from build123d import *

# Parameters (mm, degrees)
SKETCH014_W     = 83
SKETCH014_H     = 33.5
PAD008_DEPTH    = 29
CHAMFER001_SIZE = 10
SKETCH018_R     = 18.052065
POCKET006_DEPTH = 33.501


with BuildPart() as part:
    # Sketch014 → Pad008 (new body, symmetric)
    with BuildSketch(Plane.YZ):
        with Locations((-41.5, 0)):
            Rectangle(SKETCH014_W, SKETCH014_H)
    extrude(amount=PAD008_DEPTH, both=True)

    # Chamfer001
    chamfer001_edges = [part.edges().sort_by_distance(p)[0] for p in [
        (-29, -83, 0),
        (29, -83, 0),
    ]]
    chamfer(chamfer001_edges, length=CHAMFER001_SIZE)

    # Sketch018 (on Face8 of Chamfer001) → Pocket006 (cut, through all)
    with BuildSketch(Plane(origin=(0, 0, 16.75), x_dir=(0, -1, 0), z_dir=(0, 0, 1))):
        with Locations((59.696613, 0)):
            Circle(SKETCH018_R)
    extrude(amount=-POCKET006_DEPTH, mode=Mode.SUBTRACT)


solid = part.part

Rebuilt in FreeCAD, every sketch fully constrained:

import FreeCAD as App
import Part
import Sketcher
from FreeCAD import Vector


def edges_at(feature, points):
    """Names of the edges that pass closest to the given points."""
    edges = feature.Shape.Edges
    near = lambda p: min(range(len(edges)), key=lambda i: edges[i].distToShape(Part.Vertex(*p))[0])
    return sorted({f"Edge{near(p) + 1}" for p in points})

doc = App.newDocument("Part")
body = doc.addObject("PartDesign::Body", "Body")

# Sketch on YZ plane
sketch1 = body.newObject("Sketcher::SketchObject", "Sketch")
sketch1.AttachmentSupport = (doc.getObject("YZ_Plane"), [""])
sketch1.MapMode = "FlatFace"
sketch1.addGeometry(Part.LineSegment(Vector(-83, 17, 0), Vector(-83, -17, 0)), False)
sketch1.addGeometry(Part.LineSegment(Vector(-83, -17, 0), Vector(0, -17, 0)), False)
sketch1.addGeometry(Part.LineSegment(Vector(0, -17, 0), Vector(0, 17, 0)), False)
sketch1.addGeometry(Part.LineSegment(Vector(0, 17, 0), Vector(-83, 17, 0)), False)
sketch1.addConstraint(Sketcher.Constraint("Coincident", 0, 2, 1, 1))
sketch1.addConstraint(Sketcher.Constraint("Coincident", 1, 2, 2, 1))
sketch1.addConstraint(Sketcher.Constraint("Coincident", 2, 2, 3, 1))
sketch1.addConstraint(Sketcher.Constraint("Coincident", 3, 2, 0, 1))
sketch1.addConstraint(Sketcher.Constraint("Vertical", 0))
sketch1.addConstraint(Sketcher.Constraint("Horizontal", 1))
sketch1.addConstraint(Sketcher.Constraint("Vertical", 2))
sketch1.addConstraint(Sketcher.Constraint("Horizontal", 3))
sketch1.addConstraint(Sketcher.Constraint("Symmetric", 1, 2, 2, 2, -1, 1))
sketch1.addConstraint(Sketcher.Constraint("DistanceX", 1, 1, 1, 2, 83.0))
sketch1.addConstraint(Sketcher.Constraint("DistanceY", 0, 2, 0, 1, 33.5))
pad1 = body.newObject("PartDesign::Pad", "Pad")
pad1.Profile = sketch1
pad1.Length = 58
pad1.Midplane = True
doc.recompute()

chamfer = body.newObject("PartDesign::Chamfer", "Chamfer")
chamfer.Base = (pad1, edges_at(pad1, [(-29, -83, 0), (29, -83, 0)]))
chamfer.Size = 10

# Sketch on XY plane
sketch2 = body.newObject("Sketcher::SketchObject", "Sketch001")
sketch2.AttachmentSupport = (doc.getObject("XY_Plane"), [""])
sketch2.MapMode = "FlatFace"
sketch2.AttachmentOffset = App.Placement(Vector(0, 0, 16.75), App.Rotation())
sketch2.addGeometry(Part.Circle(Vector(0, -60, 0), Vector(0, 0, 1), 18), False)
sketch2.addConstraint(Sketcher.Constraint("PointOnObject", 0, 3, -2))
sketch2.addConstraint(Sketcher.Constraint("Diameter", 0, 36.10413))
sketch2.addConstraint(Sketcher.Constraint("DistanceY", 0, 3, -1, 1, 59.696613))
pocket1 = body.newObject("PartDesign::Pocket", "Pocket")
pocket1.Profile = sketch2
pocket1.Type = "ThroughAll"

doc.recompute()
